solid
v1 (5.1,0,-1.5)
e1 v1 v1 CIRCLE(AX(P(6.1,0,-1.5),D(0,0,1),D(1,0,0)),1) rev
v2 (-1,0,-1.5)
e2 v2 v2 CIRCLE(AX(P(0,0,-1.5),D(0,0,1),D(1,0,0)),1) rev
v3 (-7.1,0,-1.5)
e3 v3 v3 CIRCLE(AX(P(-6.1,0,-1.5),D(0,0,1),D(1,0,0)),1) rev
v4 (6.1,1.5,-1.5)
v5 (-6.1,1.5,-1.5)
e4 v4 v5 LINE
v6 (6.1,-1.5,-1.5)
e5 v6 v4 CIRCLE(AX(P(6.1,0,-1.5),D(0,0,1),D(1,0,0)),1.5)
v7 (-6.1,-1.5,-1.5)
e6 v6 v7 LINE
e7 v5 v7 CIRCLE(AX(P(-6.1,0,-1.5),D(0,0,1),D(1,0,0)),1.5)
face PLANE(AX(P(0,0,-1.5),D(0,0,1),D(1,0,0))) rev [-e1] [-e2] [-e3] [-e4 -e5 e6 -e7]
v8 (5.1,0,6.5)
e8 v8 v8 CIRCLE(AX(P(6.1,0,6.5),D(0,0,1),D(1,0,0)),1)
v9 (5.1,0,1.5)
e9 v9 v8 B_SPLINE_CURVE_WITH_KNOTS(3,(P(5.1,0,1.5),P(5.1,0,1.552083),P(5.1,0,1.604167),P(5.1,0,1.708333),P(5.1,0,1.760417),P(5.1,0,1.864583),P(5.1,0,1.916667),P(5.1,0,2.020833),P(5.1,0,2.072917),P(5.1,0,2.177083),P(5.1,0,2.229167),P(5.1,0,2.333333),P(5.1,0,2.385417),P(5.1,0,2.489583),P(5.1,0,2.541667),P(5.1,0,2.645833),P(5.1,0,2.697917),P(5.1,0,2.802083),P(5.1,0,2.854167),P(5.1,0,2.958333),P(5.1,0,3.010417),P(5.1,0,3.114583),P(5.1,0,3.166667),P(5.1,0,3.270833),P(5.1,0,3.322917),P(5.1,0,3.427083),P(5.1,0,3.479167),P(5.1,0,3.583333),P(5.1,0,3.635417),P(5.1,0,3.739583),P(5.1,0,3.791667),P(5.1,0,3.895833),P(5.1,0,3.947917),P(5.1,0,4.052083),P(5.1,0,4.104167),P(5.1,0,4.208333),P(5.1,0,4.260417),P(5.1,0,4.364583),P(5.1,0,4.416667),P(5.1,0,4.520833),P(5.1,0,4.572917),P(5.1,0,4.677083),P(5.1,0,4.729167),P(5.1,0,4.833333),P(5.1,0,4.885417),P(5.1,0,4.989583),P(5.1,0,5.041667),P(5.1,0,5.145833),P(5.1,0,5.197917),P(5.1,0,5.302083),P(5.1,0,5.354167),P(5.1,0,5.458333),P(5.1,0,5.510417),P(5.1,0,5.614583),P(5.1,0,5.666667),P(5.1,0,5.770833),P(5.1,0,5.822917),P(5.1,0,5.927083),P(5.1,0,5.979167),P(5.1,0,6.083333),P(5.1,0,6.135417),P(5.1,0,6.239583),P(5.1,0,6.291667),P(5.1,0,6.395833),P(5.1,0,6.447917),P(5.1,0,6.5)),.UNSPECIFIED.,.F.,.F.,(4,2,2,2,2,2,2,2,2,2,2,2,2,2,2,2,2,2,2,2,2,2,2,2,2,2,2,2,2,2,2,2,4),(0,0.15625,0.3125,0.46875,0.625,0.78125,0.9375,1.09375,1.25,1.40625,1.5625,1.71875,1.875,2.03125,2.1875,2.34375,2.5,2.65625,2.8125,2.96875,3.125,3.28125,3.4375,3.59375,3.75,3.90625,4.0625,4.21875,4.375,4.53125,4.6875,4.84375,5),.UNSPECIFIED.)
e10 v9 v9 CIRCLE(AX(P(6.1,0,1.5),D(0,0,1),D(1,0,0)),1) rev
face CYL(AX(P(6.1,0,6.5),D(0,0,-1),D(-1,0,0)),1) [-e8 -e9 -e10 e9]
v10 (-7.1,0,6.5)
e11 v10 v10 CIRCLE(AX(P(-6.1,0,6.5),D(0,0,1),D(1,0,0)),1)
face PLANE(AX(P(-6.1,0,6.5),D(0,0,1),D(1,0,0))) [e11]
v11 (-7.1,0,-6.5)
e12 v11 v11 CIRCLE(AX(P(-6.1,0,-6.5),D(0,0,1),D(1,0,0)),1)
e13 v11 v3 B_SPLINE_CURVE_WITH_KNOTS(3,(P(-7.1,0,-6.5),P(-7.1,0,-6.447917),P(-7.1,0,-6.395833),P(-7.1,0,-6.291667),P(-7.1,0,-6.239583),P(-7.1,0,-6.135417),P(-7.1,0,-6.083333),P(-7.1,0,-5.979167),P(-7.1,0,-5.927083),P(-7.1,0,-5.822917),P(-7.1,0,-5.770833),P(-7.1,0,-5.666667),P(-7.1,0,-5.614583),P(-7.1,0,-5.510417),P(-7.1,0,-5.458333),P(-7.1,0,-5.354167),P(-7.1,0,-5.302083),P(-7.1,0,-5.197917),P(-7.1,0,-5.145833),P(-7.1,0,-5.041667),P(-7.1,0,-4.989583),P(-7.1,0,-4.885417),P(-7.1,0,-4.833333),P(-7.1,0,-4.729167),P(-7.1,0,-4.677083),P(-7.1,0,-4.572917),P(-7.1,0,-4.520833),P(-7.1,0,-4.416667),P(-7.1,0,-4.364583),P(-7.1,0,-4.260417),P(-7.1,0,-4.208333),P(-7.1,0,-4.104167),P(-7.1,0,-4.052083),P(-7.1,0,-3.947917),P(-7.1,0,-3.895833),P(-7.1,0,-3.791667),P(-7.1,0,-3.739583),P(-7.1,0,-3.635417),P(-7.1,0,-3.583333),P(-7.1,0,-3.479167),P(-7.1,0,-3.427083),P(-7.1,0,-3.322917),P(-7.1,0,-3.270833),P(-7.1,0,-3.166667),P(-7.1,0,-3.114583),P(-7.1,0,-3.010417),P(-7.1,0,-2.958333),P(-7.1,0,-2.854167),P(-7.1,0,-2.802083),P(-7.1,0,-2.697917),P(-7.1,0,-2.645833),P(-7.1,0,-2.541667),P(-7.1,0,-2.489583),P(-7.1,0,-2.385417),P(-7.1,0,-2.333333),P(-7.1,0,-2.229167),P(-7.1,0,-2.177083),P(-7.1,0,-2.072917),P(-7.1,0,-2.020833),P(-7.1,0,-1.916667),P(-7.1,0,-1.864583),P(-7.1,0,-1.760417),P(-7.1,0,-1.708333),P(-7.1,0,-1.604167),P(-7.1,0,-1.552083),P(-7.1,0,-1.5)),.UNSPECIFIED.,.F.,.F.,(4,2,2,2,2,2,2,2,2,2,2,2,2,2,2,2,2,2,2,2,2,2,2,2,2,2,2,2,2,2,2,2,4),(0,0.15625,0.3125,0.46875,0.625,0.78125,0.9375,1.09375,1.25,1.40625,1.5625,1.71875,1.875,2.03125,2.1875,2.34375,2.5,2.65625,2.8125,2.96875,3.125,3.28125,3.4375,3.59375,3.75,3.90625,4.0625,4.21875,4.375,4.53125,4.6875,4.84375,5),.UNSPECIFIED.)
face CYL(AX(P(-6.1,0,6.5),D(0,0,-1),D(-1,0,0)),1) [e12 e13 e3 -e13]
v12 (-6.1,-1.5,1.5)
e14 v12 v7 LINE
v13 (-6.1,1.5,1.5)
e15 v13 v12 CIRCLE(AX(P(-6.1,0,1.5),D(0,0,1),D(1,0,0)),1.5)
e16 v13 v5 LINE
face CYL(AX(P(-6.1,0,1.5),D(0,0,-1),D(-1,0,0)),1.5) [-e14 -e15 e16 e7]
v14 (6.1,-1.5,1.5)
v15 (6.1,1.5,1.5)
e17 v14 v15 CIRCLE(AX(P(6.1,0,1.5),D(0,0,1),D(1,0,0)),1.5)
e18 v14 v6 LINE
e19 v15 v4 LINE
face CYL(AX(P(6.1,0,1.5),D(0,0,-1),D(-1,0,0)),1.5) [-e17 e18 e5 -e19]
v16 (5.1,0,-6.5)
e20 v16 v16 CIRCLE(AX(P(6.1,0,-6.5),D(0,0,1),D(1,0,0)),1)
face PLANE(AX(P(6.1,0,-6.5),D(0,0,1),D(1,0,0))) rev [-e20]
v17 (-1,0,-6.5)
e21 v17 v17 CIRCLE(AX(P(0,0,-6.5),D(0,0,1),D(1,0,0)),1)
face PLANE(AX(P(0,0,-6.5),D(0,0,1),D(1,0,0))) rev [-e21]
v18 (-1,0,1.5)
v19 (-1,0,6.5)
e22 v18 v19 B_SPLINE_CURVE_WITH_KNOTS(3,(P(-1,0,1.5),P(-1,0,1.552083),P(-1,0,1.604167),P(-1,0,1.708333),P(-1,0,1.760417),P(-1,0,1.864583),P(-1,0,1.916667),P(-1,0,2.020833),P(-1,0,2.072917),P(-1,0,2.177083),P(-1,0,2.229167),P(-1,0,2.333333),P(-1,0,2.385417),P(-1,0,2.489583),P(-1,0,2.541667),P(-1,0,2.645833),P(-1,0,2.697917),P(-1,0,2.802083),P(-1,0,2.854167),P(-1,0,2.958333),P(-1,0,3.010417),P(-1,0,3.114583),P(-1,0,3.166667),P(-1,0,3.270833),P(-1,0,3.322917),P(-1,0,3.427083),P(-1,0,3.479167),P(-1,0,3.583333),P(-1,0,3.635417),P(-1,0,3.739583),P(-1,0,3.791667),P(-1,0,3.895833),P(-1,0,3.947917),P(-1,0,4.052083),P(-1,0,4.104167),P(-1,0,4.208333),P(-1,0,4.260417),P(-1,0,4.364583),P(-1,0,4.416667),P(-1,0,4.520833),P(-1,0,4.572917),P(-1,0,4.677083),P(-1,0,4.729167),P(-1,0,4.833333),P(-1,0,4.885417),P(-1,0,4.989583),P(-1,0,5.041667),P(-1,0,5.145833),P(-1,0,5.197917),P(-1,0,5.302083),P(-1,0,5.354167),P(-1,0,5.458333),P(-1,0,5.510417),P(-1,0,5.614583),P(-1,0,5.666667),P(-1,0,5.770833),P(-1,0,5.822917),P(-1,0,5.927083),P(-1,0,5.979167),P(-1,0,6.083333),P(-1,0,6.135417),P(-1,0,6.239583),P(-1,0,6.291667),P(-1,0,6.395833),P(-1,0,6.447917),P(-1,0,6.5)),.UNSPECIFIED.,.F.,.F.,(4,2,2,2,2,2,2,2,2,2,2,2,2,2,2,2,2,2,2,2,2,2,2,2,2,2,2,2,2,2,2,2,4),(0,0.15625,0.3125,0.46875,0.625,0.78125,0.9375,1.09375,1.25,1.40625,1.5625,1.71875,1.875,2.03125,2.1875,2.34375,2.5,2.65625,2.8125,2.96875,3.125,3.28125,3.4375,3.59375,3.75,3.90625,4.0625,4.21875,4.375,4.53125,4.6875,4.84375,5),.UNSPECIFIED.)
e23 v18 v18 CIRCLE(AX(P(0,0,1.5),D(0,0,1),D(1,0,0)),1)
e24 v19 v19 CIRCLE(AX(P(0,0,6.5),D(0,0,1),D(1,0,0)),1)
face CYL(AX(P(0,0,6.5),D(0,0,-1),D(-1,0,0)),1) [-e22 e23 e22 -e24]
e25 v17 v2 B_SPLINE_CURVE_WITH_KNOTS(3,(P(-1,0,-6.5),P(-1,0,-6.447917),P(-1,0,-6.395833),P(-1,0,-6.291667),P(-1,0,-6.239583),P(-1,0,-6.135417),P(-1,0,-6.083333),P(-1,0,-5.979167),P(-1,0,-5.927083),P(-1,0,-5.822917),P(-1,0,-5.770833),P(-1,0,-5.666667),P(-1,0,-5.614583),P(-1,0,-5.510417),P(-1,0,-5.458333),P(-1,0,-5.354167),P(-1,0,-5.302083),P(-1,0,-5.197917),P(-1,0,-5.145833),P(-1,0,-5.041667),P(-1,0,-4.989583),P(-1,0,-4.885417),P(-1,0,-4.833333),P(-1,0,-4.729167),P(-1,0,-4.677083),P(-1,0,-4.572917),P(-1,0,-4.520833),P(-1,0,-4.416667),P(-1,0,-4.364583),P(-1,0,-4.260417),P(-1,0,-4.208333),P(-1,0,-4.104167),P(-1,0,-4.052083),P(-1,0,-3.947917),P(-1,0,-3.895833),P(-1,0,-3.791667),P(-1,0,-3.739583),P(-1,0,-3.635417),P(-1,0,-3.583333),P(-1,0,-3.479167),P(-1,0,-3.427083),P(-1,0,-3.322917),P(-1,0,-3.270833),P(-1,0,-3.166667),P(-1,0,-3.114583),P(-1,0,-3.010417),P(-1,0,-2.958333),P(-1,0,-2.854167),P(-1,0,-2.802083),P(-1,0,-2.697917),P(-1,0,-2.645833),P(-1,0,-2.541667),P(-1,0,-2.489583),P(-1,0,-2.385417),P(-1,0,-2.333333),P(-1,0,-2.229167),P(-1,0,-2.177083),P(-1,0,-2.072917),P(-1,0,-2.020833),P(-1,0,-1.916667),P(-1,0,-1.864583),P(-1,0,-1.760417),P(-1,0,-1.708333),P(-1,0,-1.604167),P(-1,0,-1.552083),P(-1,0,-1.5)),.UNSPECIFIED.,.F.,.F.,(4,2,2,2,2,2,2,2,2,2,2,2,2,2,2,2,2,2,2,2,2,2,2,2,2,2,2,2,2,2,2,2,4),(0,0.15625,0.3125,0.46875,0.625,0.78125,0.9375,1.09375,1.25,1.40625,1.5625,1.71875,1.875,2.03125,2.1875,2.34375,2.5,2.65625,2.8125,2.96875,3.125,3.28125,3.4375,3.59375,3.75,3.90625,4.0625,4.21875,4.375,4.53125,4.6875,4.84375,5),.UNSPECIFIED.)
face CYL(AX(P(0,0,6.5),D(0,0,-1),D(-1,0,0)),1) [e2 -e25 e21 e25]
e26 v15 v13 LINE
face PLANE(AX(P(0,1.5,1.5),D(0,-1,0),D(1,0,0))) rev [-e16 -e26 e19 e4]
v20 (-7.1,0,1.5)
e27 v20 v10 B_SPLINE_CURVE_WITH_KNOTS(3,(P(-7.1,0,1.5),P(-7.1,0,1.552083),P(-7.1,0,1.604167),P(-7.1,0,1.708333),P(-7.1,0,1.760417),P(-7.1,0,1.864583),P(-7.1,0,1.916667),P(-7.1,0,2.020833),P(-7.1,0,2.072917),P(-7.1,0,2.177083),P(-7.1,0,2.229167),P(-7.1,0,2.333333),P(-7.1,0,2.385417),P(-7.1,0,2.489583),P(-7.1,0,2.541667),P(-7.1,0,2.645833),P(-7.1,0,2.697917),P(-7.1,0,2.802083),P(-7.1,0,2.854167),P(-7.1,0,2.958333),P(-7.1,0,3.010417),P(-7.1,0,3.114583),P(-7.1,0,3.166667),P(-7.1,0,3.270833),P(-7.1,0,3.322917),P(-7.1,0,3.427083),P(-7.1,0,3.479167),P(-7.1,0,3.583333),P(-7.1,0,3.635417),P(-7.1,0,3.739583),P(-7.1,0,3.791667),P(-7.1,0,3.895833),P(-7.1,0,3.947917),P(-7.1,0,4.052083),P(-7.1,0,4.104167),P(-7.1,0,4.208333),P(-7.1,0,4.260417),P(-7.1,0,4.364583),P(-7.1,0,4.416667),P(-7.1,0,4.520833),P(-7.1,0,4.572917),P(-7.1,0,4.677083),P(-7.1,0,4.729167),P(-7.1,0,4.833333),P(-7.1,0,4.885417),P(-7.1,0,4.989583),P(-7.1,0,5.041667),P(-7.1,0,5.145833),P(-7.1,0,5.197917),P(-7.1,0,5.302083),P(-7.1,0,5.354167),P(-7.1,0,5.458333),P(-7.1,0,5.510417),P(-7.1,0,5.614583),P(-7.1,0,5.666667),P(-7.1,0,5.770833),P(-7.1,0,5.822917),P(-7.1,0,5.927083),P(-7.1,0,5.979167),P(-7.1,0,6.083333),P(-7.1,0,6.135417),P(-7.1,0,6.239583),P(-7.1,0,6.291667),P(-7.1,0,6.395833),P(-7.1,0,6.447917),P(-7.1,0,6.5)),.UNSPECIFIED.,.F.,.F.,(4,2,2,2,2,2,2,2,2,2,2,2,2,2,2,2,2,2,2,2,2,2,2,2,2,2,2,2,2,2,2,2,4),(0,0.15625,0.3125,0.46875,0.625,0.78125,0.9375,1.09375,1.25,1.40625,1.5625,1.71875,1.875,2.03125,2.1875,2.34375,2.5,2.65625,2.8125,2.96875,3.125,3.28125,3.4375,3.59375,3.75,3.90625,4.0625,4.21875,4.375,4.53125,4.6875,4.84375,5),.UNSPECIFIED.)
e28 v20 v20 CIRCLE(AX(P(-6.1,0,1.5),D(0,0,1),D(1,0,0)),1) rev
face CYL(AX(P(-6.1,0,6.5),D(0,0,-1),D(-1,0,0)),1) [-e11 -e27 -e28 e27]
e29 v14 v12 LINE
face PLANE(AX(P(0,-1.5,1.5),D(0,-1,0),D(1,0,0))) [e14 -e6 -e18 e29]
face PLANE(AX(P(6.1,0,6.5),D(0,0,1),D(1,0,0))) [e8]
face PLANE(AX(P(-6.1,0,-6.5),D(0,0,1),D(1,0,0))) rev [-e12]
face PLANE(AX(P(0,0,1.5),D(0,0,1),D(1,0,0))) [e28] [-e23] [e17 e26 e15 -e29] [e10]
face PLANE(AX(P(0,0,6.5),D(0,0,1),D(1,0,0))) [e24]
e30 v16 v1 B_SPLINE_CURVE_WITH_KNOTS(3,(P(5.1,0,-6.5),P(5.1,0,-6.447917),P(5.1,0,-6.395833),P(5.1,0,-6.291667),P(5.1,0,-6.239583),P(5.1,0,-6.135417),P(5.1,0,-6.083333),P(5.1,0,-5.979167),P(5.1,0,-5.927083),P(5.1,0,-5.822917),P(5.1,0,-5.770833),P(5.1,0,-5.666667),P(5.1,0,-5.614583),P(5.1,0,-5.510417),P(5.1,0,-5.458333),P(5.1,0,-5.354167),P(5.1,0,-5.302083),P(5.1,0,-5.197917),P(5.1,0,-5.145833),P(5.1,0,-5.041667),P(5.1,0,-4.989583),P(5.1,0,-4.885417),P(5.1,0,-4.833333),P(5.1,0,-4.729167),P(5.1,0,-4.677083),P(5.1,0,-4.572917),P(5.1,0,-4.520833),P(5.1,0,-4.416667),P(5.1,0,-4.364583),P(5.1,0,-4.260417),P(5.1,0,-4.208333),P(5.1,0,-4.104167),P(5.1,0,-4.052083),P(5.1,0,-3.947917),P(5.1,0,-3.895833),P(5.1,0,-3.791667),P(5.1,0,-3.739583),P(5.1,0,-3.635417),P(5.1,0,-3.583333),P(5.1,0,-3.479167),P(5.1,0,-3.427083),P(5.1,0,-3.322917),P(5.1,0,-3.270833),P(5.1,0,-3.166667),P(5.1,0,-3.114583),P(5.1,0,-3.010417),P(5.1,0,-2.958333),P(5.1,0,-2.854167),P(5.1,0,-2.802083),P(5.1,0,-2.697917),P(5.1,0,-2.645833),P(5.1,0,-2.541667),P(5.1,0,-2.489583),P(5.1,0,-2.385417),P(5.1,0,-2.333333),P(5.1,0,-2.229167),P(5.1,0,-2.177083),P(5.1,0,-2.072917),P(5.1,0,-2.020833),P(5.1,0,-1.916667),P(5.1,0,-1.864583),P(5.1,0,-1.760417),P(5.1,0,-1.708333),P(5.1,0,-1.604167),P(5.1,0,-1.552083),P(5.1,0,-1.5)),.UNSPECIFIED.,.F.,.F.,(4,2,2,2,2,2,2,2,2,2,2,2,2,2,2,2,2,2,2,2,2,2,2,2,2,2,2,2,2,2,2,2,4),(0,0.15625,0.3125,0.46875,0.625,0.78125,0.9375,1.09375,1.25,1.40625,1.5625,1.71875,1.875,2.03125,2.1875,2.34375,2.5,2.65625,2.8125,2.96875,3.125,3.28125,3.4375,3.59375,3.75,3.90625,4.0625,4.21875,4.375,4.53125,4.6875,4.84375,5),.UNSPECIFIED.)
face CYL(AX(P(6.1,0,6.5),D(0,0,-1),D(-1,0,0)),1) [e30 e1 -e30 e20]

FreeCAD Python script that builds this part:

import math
import FreeCAD as App
import Part
import Sketcher

doc = App.newDocument("Part")
body = doc.addObject("PartDesign::Body", "Body")

# Sketch on XY plane
sketch1 = body.newObject("Sketcher::SketchObject", "Sketch")
sketch1.AttachmentSupport = (doc.getObject("XY_Plane"), [""])
sketch1.MapMode = "FlatFace"
sketch1.addGeometry(Part.LineSegment(App.Vector(-6.1, -1.5, 0), App.Vector(6.1, -1.5, 0)), False)
sketch1.addGeometry(Part.ArcOfCircle(Part.Circle(App.Vector(6.1, 0, 0), App.Vector(0, 0, 1), 1.5), math.radians(-90), math.radians(90)), False)
sketch1.addGeometry(Part.LineSegment(App.Vector(6.1, 1.5, 0), App.Vector(-6.1, 1.5, 0)), False)
sketch1.addGeometry(Part.ArcOfCircle(Part.Circle(App.Vector(-6.1, 0, 0), App.Vector(0, 0, 1), 1.5), math.radians(90), math.radians(270)), False)
sketch1.addGeometry(Part.Circle(App.Vector(0, 0, 0), App.Vector(0, 0, 1), 1), False)
sketch1.addConstraint(Sketcher.Constraint("Tangent", 0, 2, 1, 1))
sketch1.addConstraint(Sketcher.Constraint("Tangent", 1, 2, 2, 1))
sketch1.addConstraint(Sketcher.Constraint("Tangent", 2, 2, 3, 1))
sketch1.addConstraint(Sketcher.Constraint("Tangent", 3, 2, 0, 1))
sketch1.addConstraint(Sketcher.Constraint("Horizontal", 0))
sketch1.addConstraint(Sketcher.Constraint("Horizontal", 2))
sketch1.addConstraint(Sketcher.Constraint("Coincident", 4, 3, -1, 1))
sketch1.addConstraint(Sketcher.Constraint("Symmetric", 1, 3, 3, 3, -1, 1))
sketch1.addConstraint(Sketcher.Constraint("Diameter", 4, 2.0))
sketch1.addConstraint(Sketcher.Constraint("Radius", 1, 1.5))
sketch1.addConstraint(Sketcher.Constraint("DistanceX", 0, 1, 0, 2, 12.2))
pad1 = body.newObject("PartDesign::Pad", "Pad")
pad1.Profile = sketch1
pad1.Length = 3
pad1.Midplane = True

# Sketch on XY plane
sketch2 = body.newObject("Sketcher::SketchObject", "Sketch001")
sketch2.AttachmentSupport = (doc.getObject("XY_Plane"), [""])
sketch2.MapMode = "FlatFace"
sketch2.addGeometry(Part.Circle(App.Vector(-6.1, 0, 0), App.Vector(0, 0, 1), 1), False)
sketch2.addGeometry(Part.Circle(App.Vector(6.1, 0, 0), App.Vector(0, 0, 1), 1), False)
sketch2.addGeometry(Part.Circle(App.Vector(0, 0, 0), App.Vector(0, 0, 1), 1), False)
sketch2.addConstraint(Sketcher.Constraint("Coincident", 2, 3, -1, 1))
sketch2.addConstraint(Sketcher.Constraint("Equal", 0, 1))
sketch2.addConstraint(Sketcher.Constraint("Equal", 1, 2))
sketch2.addConstraint(Sketcher.Constraint("Symmetric", 0, 3, 1, 3, -1, 1))
sketch2.addConstraint(Sketcher.Constraint("PointOnObject", 0, 3, -1))
sketch2.addConstraint(Sketcher.Constraint("Diameter", 0, 2.0))
sketch2.addConstraint(Sketcher.Constraint("DistanceX", 0, 3, -1, 1, 6.1))
pad2 = body.newObject("PartDesign::Pad", "Pad001")
pad2.Profile = sketch2
pad2.Length = 13
pad2.Midplane = True

doc.recompute()
